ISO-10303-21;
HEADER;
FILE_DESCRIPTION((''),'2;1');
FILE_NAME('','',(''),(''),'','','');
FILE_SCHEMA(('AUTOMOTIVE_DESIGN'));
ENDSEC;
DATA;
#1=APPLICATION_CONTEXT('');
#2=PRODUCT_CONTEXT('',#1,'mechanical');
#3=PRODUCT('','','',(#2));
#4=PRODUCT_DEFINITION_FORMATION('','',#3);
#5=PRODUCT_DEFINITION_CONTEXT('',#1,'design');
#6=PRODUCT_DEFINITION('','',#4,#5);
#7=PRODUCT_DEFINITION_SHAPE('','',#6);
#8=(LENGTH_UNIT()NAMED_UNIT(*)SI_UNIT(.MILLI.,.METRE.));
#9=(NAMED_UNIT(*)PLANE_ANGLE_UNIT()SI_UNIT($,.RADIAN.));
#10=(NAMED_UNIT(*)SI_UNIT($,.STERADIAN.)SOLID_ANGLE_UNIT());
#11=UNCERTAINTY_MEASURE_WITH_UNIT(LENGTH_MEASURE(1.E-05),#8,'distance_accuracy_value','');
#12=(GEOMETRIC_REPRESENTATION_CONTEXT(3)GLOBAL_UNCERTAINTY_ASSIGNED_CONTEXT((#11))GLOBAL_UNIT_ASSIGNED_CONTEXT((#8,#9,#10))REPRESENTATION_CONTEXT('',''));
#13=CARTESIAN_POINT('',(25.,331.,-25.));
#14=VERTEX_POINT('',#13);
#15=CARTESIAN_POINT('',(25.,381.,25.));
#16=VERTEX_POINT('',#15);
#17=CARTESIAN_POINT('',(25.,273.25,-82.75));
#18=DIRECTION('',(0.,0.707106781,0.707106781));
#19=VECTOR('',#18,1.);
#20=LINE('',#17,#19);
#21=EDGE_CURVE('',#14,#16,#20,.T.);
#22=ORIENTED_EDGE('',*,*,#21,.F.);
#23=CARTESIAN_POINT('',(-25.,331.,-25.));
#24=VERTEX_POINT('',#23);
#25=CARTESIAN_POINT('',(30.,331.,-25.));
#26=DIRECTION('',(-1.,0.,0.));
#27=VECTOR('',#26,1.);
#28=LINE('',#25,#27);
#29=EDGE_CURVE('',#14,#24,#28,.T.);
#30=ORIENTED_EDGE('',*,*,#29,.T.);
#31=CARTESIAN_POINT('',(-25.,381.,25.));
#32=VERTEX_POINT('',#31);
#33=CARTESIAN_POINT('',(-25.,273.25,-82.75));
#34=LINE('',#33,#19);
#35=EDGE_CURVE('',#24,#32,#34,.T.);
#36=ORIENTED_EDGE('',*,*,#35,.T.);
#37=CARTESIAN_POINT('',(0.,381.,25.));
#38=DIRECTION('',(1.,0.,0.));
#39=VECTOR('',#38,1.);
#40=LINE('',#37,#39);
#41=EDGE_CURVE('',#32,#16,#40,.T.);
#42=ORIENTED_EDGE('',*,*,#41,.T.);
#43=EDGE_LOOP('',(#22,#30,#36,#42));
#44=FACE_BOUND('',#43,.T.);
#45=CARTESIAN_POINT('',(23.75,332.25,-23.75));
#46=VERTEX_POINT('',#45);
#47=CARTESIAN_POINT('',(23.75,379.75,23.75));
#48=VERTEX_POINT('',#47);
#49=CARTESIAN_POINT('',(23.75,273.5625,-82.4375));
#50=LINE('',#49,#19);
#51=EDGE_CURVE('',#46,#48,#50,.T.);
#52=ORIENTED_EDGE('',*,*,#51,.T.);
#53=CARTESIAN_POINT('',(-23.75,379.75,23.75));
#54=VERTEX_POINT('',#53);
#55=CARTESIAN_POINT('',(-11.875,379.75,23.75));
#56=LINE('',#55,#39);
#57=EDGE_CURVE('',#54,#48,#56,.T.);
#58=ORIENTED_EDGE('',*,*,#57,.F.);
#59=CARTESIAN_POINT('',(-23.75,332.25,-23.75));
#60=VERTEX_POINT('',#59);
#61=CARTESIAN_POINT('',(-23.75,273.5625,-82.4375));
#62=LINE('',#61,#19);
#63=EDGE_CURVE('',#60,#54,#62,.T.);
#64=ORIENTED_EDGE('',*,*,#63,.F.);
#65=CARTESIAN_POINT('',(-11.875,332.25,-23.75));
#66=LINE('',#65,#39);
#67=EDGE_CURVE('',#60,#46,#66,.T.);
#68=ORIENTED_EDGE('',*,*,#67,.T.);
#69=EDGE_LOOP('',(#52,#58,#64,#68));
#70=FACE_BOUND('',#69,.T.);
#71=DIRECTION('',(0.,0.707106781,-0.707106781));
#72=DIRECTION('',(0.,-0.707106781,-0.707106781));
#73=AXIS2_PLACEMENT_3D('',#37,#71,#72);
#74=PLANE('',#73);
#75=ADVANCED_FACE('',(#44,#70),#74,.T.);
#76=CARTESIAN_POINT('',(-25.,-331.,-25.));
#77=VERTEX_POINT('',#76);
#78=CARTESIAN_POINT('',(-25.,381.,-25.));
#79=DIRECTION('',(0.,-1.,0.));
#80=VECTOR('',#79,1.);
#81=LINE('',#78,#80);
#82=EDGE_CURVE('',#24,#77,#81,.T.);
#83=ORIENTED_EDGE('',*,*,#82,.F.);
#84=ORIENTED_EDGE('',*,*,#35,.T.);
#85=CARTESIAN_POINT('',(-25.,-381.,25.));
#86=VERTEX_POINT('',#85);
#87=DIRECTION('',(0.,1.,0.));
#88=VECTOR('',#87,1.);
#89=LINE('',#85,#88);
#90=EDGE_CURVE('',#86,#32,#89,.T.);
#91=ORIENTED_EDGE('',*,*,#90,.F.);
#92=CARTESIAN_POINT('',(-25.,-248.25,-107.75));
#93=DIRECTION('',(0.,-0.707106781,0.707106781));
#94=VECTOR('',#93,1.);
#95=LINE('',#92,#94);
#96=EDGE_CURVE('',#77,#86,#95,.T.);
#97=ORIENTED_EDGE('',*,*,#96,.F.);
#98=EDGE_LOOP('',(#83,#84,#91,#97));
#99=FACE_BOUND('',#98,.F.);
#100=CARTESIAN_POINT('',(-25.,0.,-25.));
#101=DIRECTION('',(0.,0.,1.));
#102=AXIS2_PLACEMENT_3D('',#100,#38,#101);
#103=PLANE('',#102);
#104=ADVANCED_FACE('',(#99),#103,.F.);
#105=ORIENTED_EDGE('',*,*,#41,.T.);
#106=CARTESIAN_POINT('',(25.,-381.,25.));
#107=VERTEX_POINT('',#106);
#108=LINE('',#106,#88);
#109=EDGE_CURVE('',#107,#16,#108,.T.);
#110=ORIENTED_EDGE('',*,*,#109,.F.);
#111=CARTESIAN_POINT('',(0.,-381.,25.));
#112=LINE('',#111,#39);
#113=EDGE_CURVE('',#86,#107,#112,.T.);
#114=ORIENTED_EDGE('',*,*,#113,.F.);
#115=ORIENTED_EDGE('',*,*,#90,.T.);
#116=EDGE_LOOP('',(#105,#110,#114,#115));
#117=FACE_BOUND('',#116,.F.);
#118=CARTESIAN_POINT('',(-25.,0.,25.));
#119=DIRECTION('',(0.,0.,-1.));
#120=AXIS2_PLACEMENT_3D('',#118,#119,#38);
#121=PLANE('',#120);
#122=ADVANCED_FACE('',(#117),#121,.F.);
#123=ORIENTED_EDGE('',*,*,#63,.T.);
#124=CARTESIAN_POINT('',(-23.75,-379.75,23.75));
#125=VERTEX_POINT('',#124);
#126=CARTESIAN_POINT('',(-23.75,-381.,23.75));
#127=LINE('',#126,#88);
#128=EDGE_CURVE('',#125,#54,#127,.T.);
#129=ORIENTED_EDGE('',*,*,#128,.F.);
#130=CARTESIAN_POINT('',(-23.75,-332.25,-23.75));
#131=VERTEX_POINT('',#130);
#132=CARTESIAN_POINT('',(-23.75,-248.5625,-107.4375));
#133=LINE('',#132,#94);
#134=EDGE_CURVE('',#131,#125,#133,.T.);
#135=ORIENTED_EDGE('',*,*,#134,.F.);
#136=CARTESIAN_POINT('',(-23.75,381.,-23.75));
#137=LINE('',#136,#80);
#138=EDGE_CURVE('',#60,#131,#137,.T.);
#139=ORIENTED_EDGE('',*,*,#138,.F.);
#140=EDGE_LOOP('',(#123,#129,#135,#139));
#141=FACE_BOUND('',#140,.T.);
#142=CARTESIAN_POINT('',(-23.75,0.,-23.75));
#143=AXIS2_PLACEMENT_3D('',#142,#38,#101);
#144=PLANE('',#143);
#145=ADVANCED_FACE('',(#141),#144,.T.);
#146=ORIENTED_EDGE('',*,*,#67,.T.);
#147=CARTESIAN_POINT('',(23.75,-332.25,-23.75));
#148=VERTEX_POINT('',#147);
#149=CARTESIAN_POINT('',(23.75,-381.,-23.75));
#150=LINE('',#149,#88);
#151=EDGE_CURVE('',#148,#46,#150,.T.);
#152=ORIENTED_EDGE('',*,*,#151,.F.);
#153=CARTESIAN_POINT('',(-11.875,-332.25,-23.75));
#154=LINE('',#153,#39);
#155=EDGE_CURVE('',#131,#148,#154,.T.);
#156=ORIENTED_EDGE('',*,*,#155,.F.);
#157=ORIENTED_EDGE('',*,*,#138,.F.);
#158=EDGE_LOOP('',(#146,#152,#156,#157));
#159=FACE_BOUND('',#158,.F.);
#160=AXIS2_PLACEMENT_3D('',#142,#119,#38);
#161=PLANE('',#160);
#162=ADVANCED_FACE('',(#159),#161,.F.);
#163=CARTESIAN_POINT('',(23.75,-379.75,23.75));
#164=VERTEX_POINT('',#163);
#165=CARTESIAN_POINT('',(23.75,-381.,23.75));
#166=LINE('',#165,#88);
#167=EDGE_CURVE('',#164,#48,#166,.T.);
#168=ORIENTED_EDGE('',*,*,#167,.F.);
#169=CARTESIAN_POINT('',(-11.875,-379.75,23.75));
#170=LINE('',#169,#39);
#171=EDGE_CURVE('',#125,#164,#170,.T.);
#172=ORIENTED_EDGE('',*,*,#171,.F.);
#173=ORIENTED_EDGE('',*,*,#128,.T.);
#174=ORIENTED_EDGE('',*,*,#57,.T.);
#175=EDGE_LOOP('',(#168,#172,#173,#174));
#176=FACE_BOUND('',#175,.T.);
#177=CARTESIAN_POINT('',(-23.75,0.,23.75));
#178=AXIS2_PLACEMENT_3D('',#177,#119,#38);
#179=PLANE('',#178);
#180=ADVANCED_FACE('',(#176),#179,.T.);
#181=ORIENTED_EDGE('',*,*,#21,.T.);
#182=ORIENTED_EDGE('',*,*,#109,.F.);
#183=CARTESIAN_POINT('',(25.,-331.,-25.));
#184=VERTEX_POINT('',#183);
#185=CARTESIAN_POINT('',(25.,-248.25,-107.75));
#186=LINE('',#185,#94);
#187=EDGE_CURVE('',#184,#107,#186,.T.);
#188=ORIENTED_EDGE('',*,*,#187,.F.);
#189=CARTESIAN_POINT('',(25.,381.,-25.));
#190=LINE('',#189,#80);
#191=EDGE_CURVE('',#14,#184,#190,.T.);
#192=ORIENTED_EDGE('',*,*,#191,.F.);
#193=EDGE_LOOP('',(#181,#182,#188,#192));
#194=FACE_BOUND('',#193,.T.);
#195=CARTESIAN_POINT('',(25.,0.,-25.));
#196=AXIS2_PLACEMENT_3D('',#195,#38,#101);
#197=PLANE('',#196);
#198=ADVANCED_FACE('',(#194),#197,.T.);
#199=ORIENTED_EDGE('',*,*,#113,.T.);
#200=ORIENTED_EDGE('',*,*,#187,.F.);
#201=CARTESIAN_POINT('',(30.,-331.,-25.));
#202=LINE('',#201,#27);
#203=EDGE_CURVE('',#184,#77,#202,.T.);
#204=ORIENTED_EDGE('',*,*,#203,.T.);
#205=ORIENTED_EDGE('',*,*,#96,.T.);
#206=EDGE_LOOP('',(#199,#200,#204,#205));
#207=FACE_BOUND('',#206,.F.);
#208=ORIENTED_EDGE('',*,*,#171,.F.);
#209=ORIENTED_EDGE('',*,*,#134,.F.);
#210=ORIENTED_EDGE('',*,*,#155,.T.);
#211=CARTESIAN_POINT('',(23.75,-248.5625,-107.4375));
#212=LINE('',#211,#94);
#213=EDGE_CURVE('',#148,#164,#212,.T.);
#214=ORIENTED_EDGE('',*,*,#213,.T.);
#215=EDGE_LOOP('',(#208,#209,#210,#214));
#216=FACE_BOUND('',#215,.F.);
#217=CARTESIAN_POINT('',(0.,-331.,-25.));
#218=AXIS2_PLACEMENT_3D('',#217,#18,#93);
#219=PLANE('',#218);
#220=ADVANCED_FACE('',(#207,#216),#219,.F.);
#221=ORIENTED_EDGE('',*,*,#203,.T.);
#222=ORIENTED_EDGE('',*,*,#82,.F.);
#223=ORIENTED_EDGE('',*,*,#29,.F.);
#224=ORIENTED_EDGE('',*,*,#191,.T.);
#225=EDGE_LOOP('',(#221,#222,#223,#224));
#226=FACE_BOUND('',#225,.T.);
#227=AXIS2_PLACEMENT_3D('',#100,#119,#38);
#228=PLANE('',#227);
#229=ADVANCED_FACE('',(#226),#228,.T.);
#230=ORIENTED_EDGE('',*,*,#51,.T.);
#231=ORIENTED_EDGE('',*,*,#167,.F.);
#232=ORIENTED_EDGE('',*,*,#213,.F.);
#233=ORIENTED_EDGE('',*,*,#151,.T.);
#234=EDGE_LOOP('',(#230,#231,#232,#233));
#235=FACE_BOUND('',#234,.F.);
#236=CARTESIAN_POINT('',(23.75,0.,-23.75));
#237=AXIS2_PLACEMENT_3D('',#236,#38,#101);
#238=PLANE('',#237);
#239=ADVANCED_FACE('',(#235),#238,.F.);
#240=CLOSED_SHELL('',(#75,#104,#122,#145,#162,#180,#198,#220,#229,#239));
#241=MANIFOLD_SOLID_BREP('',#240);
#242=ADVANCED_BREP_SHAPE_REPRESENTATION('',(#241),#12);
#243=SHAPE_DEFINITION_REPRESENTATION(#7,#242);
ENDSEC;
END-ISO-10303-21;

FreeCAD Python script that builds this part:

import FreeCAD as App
import Part
import Sketcher
Q = App.Units.Quantity

doc = App.newDocument("Part")
body = doc.addObject("PartDesign::Body", "Body")

sketch1 = body.newObject("Sketcher::SketchObject", "Sketch")
sketch1.AttachmentSupport = (doc.getObject("XZ_Plane"), [""])
sketch1.MapMode = "FlatFace"
sketch1.addGeometry([
    Part.LineSegment(App.Vector(-25, 25, 0), App.Vector(-25, -25, 0)),
    Part.LineSegment(App.Vector(-25, -25, 0), App.Vector(25, -25, 0)),
    Part.LineSegment(App.Vector(25, -25, 0), App.Vector(25, 25, 0)),
    Part.LineSegment(App.Vector(25, 25, 0), App.Vector(-25, 25, 0)),
    Part.LineSegment(App.Vector(23.75, -23.75, 0), App.Vector(-23.75, -23.75, 0)),
    Part.LineSegment(App.Vector(-23.75, -23.75, 0), App.Vector(-23.75, 23.75, 0)),
    Part.LineSegment(App.Vector(-23.75, 23.75, 0), App.Vector(23.75, 23.75, 0)),
    Part.LineSegment(App.Vector(23.75, 23.75, 0), App.Vector(23.75, -23.75, 0)),
], False)
sketch1.addConstraint([
    Sketcher.Constraint("Coincident", 0, 2, 1, 1),
    Sketcher.Constraint("Coincident", 1, 2, 2, 1),
    Sketcher.Constraint("Coincident", 2, 2, 3, 1),
    Sketcher.Constraint("Coincident", 3, 2, 0, 1),
    Sketcher.Constraint("Coincident", 4, 2, 5, 1),
    Sketcher.Constraint("Coincident", 5, 2, 6, 1),
    Sketcher.Constraint("Coincident", 6, 2, 7, 1),
    Sketcher.Constraint("Coincident", 7, 2, 4, 1),
    Sketcher.Constraint("Vertical", 0),
    Sketcher.Constraint("Horizontal", 1),
    Sketcher.Constraint("Vertical", 2),
    Sketcher.Constraint("Horizontal", 3),
    Sketcher.Constraint("Horizontal", 4),
    Sketcher.Constraint("Vertical", 5),
    Sketcher.Constraint("Horizontal", 6),
    Sketcher.Constraint("Vertical", 7),
    Sketcher.Constraint("Symmetric", 0, 2, 2, 2, -1, 1),
    Sketcher.Constraint("Symmetric", 4, 2, 6, 2, -1, 1),
    Sketcher.Constraint("Equal", 3, 0),
    Sketcher.Constraint("Equal", 6, 5),
    Sketcher.Constraint("DistanceX", 1, 1, 1, 2, Q("50 mm")),
    Sketcher.Constraint("DistanceX", 4, 2, 4, 1, Q("47.5 mm")),
])
pad1 = body.newObject("PartDesign::Pad", "Pad")
pad1.Profile = sketch1
pad1.Length = 762
pad1.Midplane = True

sketch2 = body.newObject("Sketcher::SketchObject", "Sketch001")
sketch2.AttachmentSupport = (doc.getObject("YZ_Plane"), [""])
sketch2.MapMode = "FlatFace"
sketch2.addGeometry([
    Part.LineSegment(App.Vector(381, -25, 0), App.Vector(381, 25, 0)),
    Part.LineSegment(App.Vector(381, 25, 0), App.Vector(331, -25, 0)),
    Part.LineSegment(App.Vector(331, -25, 0), App.Vector(381, -25, 0)),
    Part.LineSegment(App.Vector(-331, -25, 0), App.Vector(-381, 25, 0)),
    Part.LineSegment(App.Vector(-381, 25, 0), App.Vector(-381, -25, 0)),
    Part.LineSegment(App.Vector(-381, -25, 0), App.Vector(-331, -25, 0)),
], False)
sketch2.addConstraint([
    Sketcher.Constraint("Coincident", 0, 2, 1, 1),
    Sketcher.Constraint("Coincident", 1, 2, 2, 1),
    Sketcher.Constraint("Coincident", 2, 2, 0, 1),
    Sketcher.Constraint("Coincident", 3, 2, 4, 1),
    Sketcher.Constraint("Coincident", 4, 2, 5, 1),
    Sketcher.Constraint("Coincident", 5, 2, 3, 1),
    Sketcher.Constraint("Vertical", 0),
    Sketcher.Constraint("Horizontal", 2),
    Sketcher.Constraint("Vertical", 4),
    Sketcher.Constraint("Horizontal", 5),
    Sketcher.Constraint("Symmetric", 2, 2, 3, 2, -1, 1),
    Sketcher.Constraint("Symmetric", 1, 2, 5, 2, -2),
    Sketcher.Constraint("Perpendicular", 1, 3),
    Sketcher.Constraint("Horizontal", 0, 2, 3, 2),
    Sketcher.Constraint("DistanceX", 2, 1, 2, 2, Q("50 mm")),
    Sketcher.Constraint("DistanceX", -1, 1, 0, 2, Q("381 mm")),
])
pocket1 = body.newObject("PartDesign::Pocket", "Pocket")
pocket1.Profile = sketch2
pocket1.Length = 60
pocket1.Midplane = True

doc.recompute()
